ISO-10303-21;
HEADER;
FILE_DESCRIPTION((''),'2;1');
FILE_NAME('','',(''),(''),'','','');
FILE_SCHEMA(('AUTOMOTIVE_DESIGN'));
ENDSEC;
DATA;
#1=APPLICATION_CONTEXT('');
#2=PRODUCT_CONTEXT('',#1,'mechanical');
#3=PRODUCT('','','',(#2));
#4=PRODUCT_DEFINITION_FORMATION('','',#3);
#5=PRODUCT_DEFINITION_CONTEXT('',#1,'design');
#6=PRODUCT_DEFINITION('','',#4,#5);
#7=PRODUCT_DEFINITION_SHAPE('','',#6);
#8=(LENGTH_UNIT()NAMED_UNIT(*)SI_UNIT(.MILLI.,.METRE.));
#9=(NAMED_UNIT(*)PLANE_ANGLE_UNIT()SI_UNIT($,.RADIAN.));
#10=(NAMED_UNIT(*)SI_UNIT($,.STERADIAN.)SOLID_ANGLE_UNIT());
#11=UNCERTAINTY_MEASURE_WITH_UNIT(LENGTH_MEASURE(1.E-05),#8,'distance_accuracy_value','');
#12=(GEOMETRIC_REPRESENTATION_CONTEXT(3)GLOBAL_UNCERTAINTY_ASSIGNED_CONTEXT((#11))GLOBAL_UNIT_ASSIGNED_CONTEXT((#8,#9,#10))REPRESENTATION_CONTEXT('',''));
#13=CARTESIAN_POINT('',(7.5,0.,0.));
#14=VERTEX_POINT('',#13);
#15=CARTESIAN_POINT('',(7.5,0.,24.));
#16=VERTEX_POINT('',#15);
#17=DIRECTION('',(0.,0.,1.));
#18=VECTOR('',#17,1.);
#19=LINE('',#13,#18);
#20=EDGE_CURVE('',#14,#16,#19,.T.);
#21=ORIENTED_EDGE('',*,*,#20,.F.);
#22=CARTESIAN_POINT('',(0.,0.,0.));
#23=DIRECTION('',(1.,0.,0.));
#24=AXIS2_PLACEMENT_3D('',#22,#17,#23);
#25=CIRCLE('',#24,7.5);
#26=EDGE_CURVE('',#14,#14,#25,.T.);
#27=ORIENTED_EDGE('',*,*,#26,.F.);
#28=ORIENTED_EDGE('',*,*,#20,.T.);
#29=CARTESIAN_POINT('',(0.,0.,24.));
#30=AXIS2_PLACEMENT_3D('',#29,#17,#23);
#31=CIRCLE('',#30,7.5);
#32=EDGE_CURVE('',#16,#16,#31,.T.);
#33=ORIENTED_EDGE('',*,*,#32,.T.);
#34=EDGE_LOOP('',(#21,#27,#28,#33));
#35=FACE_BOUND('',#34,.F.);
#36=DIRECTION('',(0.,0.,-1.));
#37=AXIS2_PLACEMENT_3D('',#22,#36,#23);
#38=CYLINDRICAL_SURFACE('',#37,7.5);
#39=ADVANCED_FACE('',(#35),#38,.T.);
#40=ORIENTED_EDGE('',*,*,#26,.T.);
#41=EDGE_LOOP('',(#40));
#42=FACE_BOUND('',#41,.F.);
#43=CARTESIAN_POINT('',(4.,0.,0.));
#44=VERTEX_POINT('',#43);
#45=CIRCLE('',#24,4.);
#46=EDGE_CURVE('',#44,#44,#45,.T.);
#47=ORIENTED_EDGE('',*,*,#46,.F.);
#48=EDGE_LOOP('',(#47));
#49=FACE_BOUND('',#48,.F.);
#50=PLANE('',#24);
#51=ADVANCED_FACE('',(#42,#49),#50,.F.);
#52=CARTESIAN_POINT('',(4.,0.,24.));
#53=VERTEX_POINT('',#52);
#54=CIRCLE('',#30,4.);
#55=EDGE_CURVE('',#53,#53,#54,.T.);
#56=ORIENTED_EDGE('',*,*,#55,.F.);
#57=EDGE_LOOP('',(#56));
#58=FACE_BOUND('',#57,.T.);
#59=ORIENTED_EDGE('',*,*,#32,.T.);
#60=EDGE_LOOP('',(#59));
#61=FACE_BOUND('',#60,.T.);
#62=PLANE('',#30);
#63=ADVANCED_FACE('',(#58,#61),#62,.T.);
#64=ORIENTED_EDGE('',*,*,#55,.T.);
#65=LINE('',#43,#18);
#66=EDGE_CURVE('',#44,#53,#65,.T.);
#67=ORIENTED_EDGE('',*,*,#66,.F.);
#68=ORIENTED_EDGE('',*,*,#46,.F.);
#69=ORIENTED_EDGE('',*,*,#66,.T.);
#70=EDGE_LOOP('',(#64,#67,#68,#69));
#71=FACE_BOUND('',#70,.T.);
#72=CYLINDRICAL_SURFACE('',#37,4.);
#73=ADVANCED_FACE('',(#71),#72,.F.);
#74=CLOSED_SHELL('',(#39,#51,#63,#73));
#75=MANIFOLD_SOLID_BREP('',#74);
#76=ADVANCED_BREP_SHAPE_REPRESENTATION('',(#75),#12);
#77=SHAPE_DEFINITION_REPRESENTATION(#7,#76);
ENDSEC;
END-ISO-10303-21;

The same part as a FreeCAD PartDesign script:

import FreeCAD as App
import Part
import Sketcher

V = App.Vector

doc = App.newDocument("Part")
body = doc.addObject("PartDesign::Body", "Body")

# Sketch on XY plane
sketch1 = doc.addObject("Sketcher::SketchObject", "Sketch")
body.addObject(sketch1)
sketch1.AttachmentSupport = (doc.XY_Plane, [""])
sketch1.MapMode = "FlatFace"
sketch1.addGeometry([
    Part.Circle(V(0, 0, 0), V(0, 0, 1), 7.5),
    Part.Circle(V(0, 0, 0), V(0, 0, 1), 4),
], False)
sketch1.addConstraint([
    Sketcher.Constraint("Coincident", 0, 3, -1, 1),
    Sketcher.Constraint("Coincident", 1, 3, -1, 1),
    Sketcher.Constraint("Diameter", 0, 15.0),
    Sketcher.Constraint("Diameter", 1, 8.0),
])
pad1 = doc.addObject("PartDesign::Pad", "Pad")
body.addObject(pad1)
pad1.Profile = sketch1
pad1.Length = 24

doc.recompute()
